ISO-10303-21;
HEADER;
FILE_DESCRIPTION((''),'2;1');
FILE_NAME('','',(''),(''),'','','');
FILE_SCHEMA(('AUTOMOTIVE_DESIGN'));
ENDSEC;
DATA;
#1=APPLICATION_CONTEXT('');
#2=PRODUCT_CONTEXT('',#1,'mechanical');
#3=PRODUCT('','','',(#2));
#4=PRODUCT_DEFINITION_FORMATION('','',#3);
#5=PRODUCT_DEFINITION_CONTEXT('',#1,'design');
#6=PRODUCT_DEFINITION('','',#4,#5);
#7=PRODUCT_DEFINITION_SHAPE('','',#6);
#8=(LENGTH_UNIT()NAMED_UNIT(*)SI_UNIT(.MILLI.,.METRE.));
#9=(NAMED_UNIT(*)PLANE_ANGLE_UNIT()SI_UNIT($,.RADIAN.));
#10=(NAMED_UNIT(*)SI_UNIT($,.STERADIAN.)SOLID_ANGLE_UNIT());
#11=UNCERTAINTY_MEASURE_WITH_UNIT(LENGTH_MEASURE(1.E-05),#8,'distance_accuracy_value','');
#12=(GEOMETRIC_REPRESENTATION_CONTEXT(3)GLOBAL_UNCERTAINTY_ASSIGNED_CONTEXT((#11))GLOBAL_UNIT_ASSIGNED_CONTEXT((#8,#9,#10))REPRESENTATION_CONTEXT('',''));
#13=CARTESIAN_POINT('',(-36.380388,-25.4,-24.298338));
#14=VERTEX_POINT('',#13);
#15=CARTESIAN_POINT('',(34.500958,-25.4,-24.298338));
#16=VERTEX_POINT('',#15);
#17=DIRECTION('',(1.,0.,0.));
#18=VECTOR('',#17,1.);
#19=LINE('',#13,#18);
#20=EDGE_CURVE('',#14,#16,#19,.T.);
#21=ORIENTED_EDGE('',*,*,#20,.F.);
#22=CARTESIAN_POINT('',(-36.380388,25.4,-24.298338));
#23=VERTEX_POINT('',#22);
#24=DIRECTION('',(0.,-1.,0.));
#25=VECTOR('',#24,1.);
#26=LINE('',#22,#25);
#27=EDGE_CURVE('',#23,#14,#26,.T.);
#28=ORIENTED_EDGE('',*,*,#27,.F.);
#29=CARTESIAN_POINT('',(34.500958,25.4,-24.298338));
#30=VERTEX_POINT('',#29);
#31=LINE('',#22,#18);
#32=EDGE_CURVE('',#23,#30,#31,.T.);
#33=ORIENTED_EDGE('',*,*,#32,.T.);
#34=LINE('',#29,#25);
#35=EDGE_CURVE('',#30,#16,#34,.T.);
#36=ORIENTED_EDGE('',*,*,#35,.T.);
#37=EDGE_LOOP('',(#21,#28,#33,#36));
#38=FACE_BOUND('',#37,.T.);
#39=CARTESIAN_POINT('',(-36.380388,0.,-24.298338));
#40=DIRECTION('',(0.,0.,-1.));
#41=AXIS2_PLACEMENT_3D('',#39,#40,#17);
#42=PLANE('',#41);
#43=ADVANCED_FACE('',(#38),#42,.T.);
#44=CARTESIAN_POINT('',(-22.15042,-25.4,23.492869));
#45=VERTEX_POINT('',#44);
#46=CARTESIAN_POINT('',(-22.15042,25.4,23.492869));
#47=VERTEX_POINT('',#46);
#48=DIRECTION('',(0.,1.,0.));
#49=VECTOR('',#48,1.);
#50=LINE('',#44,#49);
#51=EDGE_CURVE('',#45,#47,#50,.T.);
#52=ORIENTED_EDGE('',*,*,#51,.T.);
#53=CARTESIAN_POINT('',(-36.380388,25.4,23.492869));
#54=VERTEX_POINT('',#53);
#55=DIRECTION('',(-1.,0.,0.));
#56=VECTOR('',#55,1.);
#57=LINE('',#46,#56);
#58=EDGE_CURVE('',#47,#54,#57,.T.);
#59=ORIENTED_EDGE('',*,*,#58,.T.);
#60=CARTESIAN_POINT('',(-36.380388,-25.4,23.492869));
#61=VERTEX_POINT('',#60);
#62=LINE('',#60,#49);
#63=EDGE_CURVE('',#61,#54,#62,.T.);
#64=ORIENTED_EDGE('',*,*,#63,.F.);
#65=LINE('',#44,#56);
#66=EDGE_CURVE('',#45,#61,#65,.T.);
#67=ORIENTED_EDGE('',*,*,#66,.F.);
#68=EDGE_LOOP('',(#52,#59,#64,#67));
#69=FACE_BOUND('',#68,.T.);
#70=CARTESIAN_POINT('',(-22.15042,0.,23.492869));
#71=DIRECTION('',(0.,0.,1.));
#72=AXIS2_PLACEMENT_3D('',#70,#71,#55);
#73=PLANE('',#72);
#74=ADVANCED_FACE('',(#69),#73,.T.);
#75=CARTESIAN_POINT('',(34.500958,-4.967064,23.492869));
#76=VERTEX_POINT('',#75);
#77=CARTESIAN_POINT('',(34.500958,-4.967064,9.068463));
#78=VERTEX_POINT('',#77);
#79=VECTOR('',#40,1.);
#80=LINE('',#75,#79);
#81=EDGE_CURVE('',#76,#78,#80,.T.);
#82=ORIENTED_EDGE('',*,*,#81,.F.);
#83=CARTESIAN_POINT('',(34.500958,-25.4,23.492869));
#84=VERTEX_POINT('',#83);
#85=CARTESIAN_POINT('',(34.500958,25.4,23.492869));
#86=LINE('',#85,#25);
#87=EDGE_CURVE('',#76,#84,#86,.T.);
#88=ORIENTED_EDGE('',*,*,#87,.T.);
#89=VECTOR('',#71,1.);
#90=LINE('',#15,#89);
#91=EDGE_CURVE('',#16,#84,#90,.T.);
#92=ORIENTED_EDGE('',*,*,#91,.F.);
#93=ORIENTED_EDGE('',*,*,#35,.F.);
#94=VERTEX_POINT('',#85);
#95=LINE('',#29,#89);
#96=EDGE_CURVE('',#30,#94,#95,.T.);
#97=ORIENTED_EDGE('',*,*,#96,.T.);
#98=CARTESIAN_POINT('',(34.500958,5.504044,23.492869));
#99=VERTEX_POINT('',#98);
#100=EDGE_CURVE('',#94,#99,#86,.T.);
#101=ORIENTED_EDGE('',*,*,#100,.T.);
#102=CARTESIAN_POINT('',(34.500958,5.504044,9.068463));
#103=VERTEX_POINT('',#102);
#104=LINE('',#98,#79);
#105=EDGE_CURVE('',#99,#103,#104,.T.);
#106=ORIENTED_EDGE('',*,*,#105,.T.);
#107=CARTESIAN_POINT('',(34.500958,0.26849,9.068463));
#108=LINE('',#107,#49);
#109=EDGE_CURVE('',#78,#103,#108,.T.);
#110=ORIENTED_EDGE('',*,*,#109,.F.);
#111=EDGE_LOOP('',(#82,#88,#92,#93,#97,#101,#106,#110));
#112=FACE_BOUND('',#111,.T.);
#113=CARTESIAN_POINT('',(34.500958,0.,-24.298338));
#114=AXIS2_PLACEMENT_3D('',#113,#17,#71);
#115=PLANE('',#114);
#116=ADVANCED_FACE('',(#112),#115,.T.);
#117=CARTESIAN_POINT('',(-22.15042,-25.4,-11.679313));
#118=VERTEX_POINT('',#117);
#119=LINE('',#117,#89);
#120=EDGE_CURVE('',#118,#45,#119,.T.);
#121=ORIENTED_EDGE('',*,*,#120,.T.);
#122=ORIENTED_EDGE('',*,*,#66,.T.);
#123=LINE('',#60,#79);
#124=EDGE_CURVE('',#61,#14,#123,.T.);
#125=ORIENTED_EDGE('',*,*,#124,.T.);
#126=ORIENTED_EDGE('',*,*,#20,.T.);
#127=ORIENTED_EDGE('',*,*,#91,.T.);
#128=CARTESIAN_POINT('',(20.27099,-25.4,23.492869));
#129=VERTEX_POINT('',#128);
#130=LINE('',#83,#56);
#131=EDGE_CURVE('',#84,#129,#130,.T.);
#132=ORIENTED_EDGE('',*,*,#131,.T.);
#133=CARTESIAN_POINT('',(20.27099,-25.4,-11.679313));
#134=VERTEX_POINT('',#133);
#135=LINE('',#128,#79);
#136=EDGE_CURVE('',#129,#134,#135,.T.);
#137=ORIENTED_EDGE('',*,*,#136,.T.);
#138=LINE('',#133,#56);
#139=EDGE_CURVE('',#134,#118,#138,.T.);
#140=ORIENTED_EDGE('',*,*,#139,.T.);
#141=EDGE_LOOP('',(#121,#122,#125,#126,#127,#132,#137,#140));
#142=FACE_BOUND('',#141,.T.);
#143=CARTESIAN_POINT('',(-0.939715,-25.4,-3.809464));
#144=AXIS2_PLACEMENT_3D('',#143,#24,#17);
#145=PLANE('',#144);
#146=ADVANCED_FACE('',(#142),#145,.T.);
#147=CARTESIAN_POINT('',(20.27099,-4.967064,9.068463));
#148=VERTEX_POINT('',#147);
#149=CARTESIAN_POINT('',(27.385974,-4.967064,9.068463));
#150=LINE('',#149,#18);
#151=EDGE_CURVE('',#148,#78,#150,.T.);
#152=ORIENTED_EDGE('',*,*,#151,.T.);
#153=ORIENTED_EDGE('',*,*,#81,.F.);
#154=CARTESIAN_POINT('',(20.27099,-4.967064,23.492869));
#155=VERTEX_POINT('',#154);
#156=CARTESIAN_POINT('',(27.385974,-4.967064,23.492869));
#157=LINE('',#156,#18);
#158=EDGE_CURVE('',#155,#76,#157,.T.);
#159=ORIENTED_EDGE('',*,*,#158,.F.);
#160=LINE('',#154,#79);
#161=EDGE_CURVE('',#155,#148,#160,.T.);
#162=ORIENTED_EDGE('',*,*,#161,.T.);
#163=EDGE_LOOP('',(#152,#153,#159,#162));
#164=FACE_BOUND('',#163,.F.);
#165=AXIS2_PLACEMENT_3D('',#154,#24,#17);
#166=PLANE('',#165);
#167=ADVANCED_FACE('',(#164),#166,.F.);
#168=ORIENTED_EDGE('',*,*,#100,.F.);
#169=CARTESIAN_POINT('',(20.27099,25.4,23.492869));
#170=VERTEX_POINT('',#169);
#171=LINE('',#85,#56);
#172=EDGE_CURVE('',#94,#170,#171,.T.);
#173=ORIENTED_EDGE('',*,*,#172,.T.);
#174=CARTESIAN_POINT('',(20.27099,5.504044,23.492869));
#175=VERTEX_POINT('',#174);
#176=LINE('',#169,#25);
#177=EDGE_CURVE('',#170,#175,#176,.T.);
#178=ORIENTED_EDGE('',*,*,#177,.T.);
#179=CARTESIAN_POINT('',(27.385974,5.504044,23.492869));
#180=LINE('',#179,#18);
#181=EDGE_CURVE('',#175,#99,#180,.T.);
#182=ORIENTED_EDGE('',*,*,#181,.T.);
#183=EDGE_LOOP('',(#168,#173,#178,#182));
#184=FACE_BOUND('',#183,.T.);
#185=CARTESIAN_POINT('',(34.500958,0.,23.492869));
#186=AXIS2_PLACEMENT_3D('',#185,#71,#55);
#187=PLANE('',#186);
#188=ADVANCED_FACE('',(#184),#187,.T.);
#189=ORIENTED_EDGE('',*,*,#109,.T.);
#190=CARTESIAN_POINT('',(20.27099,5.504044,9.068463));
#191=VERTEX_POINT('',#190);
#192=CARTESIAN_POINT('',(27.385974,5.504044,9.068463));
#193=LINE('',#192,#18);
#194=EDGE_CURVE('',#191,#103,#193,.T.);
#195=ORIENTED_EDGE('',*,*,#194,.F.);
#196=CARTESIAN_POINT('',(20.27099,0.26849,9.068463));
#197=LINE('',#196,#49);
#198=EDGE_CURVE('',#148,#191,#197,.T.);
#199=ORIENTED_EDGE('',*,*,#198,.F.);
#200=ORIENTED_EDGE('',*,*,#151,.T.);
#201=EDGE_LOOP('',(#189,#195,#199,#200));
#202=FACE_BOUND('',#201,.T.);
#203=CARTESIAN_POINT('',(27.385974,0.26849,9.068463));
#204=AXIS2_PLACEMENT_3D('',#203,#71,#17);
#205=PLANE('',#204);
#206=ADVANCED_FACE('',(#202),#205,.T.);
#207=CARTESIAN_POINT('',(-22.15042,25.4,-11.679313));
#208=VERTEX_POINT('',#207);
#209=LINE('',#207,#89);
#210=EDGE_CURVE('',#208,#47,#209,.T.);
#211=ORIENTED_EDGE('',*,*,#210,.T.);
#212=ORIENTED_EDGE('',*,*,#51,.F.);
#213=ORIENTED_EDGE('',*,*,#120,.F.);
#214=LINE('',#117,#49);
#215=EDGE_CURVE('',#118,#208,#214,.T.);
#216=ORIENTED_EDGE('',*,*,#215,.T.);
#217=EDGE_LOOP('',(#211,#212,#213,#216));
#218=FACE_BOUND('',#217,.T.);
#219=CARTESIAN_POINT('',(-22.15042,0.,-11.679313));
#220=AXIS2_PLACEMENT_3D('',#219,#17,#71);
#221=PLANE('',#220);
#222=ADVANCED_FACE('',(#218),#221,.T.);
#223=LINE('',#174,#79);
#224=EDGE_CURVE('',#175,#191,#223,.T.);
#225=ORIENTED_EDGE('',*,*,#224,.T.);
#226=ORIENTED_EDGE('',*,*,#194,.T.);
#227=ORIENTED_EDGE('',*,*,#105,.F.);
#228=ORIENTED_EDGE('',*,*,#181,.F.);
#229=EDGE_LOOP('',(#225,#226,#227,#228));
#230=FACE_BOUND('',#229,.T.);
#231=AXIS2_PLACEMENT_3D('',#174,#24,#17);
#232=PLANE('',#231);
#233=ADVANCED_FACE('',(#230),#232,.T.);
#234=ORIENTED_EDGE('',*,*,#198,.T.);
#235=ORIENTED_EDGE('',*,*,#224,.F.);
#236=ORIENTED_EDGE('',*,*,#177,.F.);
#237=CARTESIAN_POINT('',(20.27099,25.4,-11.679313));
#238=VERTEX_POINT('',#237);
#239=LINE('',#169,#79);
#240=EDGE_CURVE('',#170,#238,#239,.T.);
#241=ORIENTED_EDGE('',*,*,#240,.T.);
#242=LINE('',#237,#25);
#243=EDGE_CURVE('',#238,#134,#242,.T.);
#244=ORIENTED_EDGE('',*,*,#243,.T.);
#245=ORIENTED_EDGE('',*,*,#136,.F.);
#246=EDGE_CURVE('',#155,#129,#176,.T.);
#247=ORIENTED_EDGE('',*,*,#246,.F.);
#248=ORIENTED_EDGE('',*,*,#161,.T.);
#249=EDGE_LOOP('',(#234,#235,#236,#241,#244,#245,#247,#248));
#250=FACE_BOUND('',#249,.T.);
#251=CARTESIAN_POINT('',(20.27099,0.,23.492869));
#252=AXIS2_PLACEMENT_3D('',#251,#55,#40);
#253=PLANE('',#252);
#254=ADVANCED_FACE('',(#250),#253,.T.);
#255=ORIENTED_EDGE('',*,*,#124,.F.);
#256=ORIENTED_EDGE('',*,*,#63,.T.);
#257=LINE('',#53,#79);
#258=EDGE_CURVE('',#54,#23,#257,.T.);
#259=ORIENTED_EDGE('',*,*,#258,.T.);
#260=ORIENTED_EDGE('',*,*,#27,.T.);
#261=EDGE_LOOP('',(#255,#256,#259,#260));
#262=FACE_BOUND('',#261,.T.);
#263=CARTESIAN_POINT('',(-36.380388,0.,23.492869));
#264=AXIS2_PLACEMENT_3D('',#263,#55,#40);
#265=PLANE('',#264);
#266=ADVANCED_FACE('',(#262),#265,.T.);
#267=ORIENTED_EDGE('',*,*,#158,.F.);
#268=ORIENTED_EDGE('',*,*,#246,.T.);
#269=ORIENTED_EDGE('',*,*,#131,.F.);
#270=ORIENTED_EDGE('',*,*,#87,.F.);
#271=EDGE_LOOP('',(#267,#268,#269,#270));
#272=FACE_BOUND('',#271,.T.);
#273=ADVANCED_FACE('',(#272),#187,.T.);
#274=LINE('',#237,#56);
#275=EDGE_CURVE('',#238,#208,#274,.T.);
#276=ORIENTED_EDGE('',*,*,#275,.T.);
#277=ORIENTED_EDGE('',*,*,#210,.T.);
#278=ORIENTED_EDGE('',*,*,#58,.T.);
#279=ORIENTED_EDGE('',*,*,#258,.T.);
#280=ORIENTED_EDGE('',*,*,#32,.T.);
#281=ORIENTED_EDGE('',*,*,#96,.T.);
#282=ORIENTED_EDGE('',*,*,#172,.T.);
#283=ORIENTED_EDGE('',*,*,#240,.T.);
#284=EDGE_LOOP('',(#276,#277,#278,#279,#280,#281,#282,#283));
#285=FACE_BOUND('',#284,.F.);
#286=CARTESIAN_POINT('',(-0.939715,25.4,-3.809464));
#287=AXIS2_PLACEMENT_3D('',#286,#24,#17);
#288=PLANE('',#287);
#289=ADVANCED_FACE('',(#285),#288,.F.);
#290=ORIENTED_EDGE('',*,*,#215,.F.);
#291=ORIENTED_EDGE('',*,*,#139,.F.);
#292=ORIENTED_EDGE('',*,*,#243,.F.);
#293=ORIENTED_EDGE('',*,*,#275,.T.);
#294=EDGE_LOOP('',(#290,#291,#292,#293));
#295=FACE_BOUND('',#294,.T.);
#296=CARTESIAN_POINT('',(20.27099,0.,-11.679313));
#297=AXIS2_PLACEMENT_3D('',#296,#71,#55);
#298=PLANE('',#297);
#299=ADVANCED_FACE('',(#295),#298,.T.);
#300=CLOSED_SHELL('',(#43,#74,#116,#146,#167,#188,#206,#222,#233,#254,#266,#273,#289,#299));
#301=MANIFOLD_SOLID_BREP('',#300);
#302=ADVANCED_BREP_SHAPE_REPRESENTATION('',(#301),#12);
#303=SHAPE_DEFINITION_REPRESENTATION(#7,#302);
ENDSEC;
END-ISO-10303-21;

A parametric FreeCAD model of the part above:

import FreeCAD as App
import Part
import Sketcher

V = App.Vector
Q = App.Units.Quantity


def add_polygon(sketch, points):
    """Adds a closed chain of lines whose ends are joined by coincident constraints."""
    first, n = sketch.GeometryCount, len(points)
    for a, b in zip(points, points[1:] + points[:1]):
        sketch.addGeometry(Part.LineSegment(App.Vector(*a, 0), App.Vector(*b, 0)), False)
    for i in range(n):
        sketch.addConstraint(Sketcher.Constraint("Coincident", first + i, 2, first + (i + 1) % n, 1))

doc = App.newDocument("Part")
params = doc.addObject("Spreadsheet::Sheet", "Params")
for row, (alias, value) in enumerate([
    ("pad1_length", "2 in"),
    ("pocket1_length", "14.424406 mm"),
], start=1):
    params.set(f"A{row}", alias)
    params.set(f"B{row}", "=" + value)
    params.setAlias(f"B{row}", alias)

body = doc.addObject("PartDesign::Body", "Body")

# Sketch on XZ plane
sketch1 = body.newObject("Sketcher::SketchObject", "Sketch")
sketch1.AttachmentSupport = (doc.getObject("XZ_Plane"), [""])
sketch1.MapMode = "FlatFace"
add_polygon(sketch1, [(-36.380388, 23.492869), (-36.380388, -24.298338), (34.500958, -24.298338), (34.500958, 23.492869), (20.27099, 23.492869), (20.27099, -11.679313), (-22.15042, -11.679313), (-22.15042, 23.492869)])  # lines 0-7
sketch1.addConstraint([
    Sketcher.Constraint("Vertical", 0),
    Sketcher.Constraint("Horizontal", 1),
    Sketcher.Constraint("Vertical", 2),
    Sketcher.Constraint("Horizontal", 3),
    Sketcher.Constraint("Vertical", 4),
    Sketcher.Constraint("Horizontal", 5),
    Sketcher.Constraint("Vertical", 6),
    Sketcher.Constraint("Horizontal", 7),
    Sketcher.Constraint("Horizontal", 3, 2, 6, 2),
    Sketcher.Constraint("Equal", 3, 7),
    Sketcher.Constraint("DistanceX", 5, 2, 5, 1, Q("42.42141 mm")),
    Sketcher.Constraint("DistanceX", 7, 2, 7, 1, Q("14.229968 mm")),
    Sketcher.Constraint("DistanceY", 0, 2, 0, 1, Q("47.791207 mm")),
    Sketcher.Constraint("DistanceY", 4, 2, 4, 1, Q("35.172182 mm")),
    Sketcher.Constraint("DistanceX", 0, 2, -1, 1, Q("36.380388 mm")),
    Sketcher.Constraint("DistanceY", 0, 2, -1, 1, Q("24.298338 mm")),
])
pad1 = body.newObject("PartDesign::Pad", "Pad")
pad1.Profile = sketch1
pad1.setExpression("Length", "Params.pad1_length")
pad1.Midplane = True

# Sketch on XY plane
sketch2 = body.newObject("Sketcher::SketchObject", "Sketch001")
sketch2.AttachmentSupport = (doc.getObject("XY_Plane"), [""])
sketch2.MapMode = "FlatFace"
sketch2.AttachmentOffset = App.Placement(V(0, 0, 23.492869), App.Rotation())
add_polygon(sketch2, [(20.27099, 5.504044), (20.27099, -4.967064), (34.500958, -4.967064), (34.500958, 5.504044)])  # lines 0-3
sketch2.addConstraint([
    Sketcher.Constraint("Vertical", 0),
    Sketcher.Constraint("Horizontal", 1),
    Sketcher.Constraint("Vertical", 2),
    Sketcher.Constraint("Horizontal", 3),
    Sketcher.Constraint("DistanceY", 0, 2, 0, 1, Q("10.471108 mm")),
    Sketcher.Constraint("DistanceX", 1, 1, 1, 2, Q("14.229968 mm")),
    Sketcher.Constraint("DistanceX", -1, 1, 0, 2, Q("20.27099 mm")),
    Sketcher.Constraint("DistanceY", 0, 2, -1, 1, Q("4.967064 mm")),
])
pocket1 = body.newObject("PartDesign::Pocket", "Pocket")
pocket1.Profile = sketch2
pocket1.setExpression("Length", "Params.pocket1_length")

doc.recompute()
